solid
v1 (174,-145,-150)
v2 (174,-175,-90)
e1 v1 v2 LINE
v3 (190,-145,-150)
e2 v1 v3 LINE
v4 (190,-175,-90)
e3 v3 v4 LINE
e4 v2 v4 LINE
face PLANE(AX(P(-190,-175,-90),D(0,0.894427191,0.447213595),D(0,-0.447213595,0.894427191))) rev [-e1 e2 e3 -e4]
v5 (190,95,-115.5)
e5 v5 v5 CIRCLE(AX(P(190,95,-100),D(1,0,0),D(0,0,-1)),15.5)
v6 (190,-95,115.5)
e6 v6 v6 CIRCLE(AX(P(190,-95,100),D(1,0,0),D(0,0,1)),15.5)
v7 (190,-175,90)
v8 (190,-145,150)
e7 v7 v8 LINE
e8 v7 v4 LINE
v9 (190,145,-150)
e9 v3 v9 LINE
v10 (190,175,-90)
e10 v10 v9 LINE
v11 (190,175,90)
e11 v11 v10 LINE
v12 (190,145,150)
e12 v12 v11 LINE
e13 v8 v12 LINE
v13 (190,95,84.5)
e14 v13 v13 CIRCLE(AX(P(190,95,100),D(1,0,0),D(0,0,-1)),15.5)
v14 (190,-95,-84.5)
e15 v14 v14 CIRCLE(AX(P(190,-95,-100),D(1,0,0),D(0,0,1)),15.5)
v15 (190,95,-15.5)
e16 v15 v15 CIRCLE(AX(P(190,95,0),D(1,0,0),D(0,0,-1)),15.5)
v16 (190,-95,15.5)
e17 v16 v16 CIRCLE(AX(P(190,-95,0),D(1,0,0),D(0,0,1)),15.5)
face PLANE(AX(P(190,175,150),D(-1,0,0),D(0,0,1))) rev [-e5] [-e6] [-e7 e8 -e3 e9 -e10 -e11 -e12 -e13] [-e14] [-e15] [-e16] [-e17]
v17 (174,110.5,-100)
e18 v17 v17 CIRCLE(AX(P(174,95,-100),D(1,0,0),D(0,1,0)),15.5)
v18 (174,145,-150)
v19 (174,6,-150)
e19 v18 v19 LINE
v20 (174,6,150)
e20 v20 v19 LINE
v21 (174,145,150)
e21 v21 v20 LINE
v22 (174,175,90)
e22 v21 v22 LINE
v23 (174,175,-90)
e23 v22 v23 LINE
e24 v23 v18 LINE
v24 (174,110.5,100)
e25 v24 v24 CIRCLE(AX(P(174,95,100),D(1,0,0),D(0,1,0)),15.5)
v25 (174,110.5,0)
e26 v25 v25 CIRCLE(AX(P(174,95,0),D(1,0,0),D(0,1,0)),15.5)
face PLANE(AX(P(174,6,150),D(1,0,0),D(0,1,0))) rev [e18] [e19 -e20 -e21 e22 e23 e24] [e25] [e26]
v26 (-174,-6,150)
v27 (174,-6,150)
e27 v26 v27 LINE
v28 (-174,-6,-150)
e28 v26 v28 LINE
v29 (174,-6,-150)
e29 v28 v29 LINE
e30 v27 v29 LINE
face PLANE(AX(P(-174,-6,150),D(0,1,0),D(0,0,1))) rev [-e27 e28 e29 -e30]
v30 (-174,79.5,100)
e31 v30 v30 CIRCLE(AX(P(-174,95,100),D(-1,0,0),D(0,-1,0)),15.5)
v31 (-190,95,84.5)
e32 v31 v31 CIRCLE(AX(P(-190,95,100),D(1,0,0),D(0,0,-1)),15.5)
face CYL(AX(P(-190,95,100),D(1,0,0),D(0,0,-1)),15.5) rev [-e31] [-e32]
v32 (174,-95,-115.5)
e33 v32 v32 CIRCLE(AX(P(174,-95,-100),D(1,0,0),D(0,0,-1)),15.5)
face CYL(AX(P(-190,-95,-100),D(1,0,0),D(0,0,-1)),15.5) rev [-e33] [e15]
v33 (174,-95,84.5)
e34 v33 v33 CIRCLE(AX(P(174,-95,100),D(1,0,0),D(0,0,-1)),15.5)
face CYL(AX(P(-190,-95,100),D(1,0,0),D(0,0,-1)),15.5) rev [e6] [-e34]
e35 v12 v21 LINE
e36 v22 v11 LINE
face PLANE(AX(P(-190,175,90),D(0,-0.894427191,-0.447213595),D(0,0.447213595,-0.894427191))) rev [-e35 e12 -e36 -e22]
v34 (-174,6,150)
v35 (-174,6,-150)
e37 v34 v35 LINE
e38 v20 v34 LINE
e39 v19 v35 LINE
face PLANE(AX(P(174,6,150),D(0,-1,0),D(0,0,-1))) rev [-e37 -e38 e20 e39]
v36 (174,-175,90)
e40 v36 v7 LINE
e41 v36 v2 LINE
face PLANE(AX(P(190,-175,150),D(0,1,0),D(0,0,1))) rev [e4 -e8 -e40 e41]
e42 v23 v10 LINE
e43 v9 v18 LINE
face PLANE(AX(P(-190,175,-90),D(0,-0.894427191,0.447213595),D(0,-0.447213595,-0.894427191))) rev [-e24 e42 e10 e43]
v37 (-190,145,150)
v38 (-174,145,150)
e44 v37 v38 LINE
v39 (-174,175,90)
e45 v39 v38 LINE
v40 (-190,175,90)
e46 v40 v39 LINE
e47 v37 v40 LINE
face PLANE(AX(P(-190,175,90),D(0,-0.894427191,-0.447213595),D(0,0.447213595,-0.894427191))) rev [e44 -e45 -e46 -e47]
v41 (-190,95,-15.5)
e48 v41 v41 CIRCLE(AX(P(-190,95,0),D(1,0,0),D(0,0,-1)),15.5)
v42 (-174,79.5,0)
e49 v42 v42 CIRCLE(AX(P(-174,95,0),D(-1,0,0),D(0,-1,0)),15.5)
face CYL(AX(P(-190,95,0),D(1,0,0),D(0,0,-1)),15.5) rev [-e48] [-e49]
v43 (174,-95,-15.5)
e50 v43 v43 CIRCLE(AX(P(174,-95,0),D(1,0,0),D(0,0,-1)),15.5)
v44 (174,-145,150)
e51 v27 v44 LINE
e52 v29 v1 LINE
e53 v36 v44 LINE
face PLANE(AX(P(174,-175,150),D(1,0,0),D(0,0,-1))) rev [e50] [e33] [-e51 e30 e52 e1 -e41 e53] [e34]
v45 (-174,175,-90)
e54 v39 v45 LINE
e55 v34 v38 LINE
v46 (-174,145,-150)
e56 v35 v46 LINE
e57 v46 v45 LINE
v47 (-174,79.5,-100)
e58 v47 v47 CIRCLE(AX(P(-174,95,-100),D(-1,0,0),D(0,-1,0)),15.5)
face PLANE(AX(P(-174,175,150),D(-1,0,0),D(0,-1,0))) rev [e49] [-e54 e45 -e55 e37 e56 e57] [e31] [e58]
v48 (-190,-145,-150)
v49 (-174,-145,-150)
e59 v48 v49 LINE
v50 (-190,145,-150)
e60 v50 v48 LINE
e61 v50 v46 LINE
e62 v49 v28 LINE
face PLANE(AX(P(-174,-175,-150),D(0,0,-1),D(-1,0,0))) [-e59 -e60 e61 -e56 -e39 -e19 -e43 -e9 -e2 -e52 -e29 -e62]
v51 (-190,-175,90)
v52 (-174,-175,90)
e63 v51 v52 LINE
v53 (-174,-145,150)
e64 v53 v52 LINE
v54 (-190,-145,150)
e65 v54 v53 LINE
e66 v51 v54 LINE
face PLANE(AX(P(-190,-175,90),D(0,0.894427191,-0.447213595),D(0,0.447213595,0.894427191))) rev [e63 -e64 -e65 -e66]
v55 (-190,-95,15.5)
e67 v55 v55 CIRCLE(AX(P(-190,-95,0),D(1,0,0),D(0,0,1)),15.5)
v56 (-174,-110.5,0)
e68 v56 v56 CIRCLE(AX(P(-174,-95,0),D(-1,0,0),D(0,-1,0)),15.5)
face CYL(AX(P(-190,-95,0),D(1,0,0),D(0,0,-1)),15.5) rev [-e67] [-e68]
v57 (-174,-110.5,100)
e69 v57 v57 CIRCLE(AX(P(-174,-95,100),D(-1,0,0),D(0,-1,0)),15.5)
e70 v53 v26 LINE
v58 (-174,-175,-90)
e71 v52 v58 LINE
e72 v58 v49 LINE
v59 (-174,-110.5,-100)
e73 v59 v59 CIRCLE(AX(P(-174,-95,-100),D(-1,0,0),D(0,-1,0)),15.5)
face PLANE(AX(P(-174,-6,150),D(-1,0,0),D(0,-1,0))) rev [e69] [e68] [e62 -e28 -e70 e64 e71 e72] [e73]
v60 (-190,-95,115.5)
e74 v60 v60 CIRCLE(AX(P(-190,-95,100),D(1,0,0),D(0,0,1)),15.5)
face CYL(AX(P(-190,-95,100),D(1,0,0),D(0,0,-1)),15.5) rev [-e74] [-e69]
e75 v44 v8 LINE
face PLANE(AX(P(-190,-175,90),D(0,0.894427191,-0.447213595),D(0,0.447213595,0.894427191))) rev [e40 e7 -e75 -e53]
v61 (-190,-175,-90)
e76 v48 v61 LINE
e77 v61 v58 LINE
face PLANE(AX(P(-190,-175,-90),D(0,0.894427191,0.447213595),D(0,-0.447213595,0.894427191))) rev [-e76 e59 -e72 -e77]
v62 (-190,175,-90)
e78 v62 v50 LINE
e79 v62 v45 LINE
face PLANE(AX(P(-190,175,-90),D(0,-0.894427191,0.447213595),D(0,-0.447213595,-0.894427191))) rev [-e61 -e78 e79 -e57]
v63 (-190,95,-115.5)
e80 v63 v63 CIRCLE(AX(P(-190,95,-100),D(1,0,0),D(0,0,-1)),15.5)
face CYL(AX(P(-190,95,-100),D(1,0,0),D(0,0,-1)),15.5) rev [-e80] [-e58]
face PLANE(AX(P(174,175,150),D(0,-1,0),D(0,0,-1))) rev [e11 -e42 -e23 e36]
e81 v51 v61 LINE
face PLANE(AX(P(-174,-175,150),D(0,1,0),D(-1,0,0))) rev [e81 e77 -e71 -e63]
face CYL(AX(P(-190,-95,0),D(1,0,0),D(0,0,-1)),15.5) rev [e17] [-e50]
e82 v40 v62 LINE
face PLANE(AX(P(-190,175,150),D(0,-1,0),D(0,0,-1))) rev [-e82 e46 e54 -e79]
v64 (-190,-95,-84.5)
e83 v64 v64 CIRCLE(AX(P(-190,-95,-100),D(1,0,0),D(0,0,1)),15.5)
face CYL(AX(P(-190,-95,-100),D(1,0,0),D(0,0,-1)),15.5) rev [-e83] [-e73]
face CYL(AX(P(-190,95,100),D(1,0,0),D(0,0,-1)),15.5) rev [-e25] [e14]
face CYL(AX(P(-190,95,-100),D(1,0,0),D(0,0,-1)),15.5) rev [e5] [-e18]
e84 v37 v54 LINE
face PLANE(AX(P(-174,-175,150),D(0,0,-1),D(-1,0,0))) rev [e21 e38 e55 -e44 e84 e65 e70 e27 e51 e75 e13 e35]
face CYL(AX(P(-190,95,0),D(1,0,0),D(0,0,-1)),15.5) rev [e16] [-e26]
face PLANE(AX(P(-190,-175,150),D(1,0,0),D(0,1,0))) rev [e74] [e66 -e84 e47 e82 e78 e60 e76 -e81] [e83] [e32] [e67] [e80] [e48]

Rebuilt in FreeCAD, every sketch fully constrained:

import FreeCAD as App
import Part
import Sketcher
Q = App.Units.Quantity

doc = App.newDocument("Part")
params = doc.addObject("Spreadsheet::Sheet", "Params")
for row, (alias, value) in enumerate([
    ("sketch1_width", "348 mm"),
    ("sketch1_width2", "16 mm"),
    ("sketch1_height", "169 mm"),
    ("sketch1_height2", "350 mm"),
    ("pad1_length", "300 mm"),
    ("sketch2_diameter", "31 mm"),
    ("sketch3_width", "30 mm"),
    ("sketch3_height", "60 mm"),
], start=1):
    params.set(f"A{row}", alias)
    params.set(f"B{row}", "=" + value)
    params.setAlias(f"B{row}", alias)

body = doc.addObject("PartDesign::Body", "Body")

# Sketch on XY plane
sketch1 = body.newObject("Sketcher::SketchObject", "Sketch")
sketch1.AttachmentSupport = (doc.getObject("XY_Plane"), [""])
sketch1.MapMode = "FlatFace"
sketch1.addGeometry([
    Part.LineSegment(App.Vector(-174, -6, 0), App.Vector(174, -6, 0)),  # 0
    Part.LineSegment(App.Vector(174, -6, 0), App.Vector(174, -175, 0)),  # 1
    Part.LineSegment(App.Vector(174, -175, 0), App.Vector(190, -175, 0)),  # 2
    Part.LineSegment(App.Vector(190, -175, 0), App.Vector(190, 175, 0)),  # 3
    Part.LineSegment(App.Vector(190, 175, 0), App.Vector(174, 175, 0)),  # 4
    Part.LineSegment(App.Vector(174, 175, 0), App.Vector(174, 6, 0)),  # 5
    Part.LineSegment(App.Vector(174, 6, 0), App.Vector(-174, 6, 0)),  # 6
    Part.LineSegment(App.Vector(-174, 6, 0), App.Vector(-174, 175, 0)),  # 7
    Part.LineSegment(App.Vector(-174, 175, 0), App.Vector(-190, 175, 0)),  # 8
    Part.LineSegment(App.Vector(-190, 175, 0), App.Vector(-190, -175, 0)),  # 9
    Part.LineSegment(App.Vector(-190, -175, 0), App.Vector(-174, -175, 0)),  # 10
    Part.LineSegment(App.Vector(-174, -175, 0), App.Vector(-174, -6, 0)),  # 11
], False)
sketch1.addConstraint([
    Sketcher.Constraint("Coincident", 0, 2, 1, 1),
    Sketcher.Constraint("Coincident", 1, 2, 2, 1),
    Sketcher.Constraint("Coincident", 2, 2, 3, 1),
    Sketcher.Constraint("Coincident", 3, 2, 4, 1),
    Sketcher.Constraint("Coincident", 4, 2, 5, 1),
    Sketcher.Constraint("Coincident", 5, 2, 6, 1),
    Sketcher.Constraint("Coincident", 6, 2, 7, 1),
    Sketcher.Constraint("Coincident", 7, 2, 8, 1),
    Sketcher.Constraint("Coincident", 8, 2, 9, 1),
    Sketcher.Constraint("Coincident", 9, 2, 10, 1),
    Sketcher.Constraint("Coincident", 10, 2, 11, 1),
    Sketcher.Constraint("Coincident", 11, 2, 0, 1),
    Sketcher.Constraint("Horizontal", 0),
    Sketcher.Constraint("Vertical", 1),
    Sketcher.Constraint("Horizontal", 2),
    Sketcher.Constraint("Vertical", 3),
    Sketcher.Constraint("Horizontal", 4),
    Sketcher.Constraint("Vertical", 5),
    Sketcher.Constraint("Horizontal", 6),
    Sketcher.Constraint("Vertical", 7),
    Sketcher.Constraint("Horizontal", 8),
    Sketcher.Constraint("Vertical", 9),
    Sketcher.Constraint("Horizontal", 10),
    Sketcher.Constraint("Vertical", 11),
    Sketcher.Constraint("Symmetric", 0, 2, 6, 2, -1, 1),
    Sketcher.Constraint("Symmetric", 2, 2, 8, 2, -1, 1),
    Sketcher.Constraint("Symmetric", 4, 2, 10, 2, -1, 1),
    Sketcher.Constraint("Symmetric", 4, 2, 7, 2, -2),
    Sketcher.Constraint("DistanceX", 0, 1, 0, 2, Q("348 mm")),
    Sketcher.Constraint("DistanceX", 2, 1, 2, 2, Q("16 mm")),
    Sketcher.Constraint("DistanceY", 1, 2, 1, 1, Q("169 mm")),
    Sketcher.Constraint("DistanceY", 3, 1, 3, 2, Q("350 mm")),
])
sketch1.setExpression("Constraints[28]", "Params.sketch1_width")
sketch1.setExpression("Constraints[29]", "Params.sketch1_width2")
sketch1.setExpression("Constraints[30]", "Params.sketch1_height")
sketch1.setExpression("Constraints[31]", "Params.sketch1_height2")
pad1 = body.newObject("PartDesign::Pad", "Pad")
pad1.Profile = sketch1
pad1.setExpression("Length", "Params.pad1_length")
pad1.Midplane = True

# Sketch on YZ plane
sketch2 = body.newObject("Sketcher::SketchObject", "Sketch001")
sketch2.AttachmentSupport = (doc.getObject("YZ_Plane"), [""])
sketch2.MapMode = "FlatFace"
sketch2.AttachmentOffset = App.Placement(App.Vector(0, 0, 190), App.Rotation())
sketch2.addGeometry([
    Part.Circle(App.Vector(95, 100, 0), App.Vector(0, 0, 1), 15.5),  # 0
    Part.Circle(App.Vector(95, 0, 0), App.Vector(0, 0, 1), 15.5),  # 1
    Part.Circle(App.Vector(95, -100, 0), App.Vector(0, 0, 1), 15.5),  # 2
    Part.Circle(App.Vector(-95, -100, 0), App.Vector(0, 0, 1), 15.5),  # 3
    Part.Circle(App.Vector(-95, 0, 0), App.Vector(0, 0, 1), 15.5),  # 4
    Part.Circle(App.Vector(-95, 100, 0), App.Vector(0, 0, 1), 15.5),  # 5
], False)
sketch2.addConstraint([
    Sketcher.Constraint("Equal", 0, 1),
    Sketcher.Constraint("Equal", 1, 2),
    Sketcher.Constraint("Equal", 2, 3),
    Sketcher.Constraint("Equal", 3, 4),
    Sketcher.Constraint("Equal", 4, 5),
    Sketcher.Constraint("Symmetric", 0, 3, 3, 3, -1, 1),
    Sketcher.Constraint("Symmetric", 1, 3, 4, 3, -1, 1),
    Sketcher.Constraint("Symmetric", 2, 3, 5, 3, -1, 1),
    Sketcher.Constraint("Symmetric", 2, 3, 3, 3, -2),
    Sketcher.Constraint("PointOnObject", 1, 3, -1),
    Sketcher.Constraint("Vertical", 0, 3, 1, 3),
    Sketcher.Constraint("Diameter", 0, Q("31 mm")),
    Sketcher.Constraint("DistanceX", -1, 1, 0, 3, Q("95 mm")),
    Sketcher.Constraint("DistanceY", -1, 1, 0, 3, Q("100 mm")),
])
sketch2.setExpression("Constraints[11]", "Params.sketch2_diameter")
pocket1 = body.newObject("PartDesign::Pocket", "Pocket")
pocket1.Profile = sketch2
pocket1.Type = "ThroughAll"

# Sketch on YZ plane
sketch3 = body.newObject("Sketcher::SketchObject", "Sketch002")
sketch3.AttachmentSupport = (doc.getObject("YZ_Plane"), [""])
sketch3.MapMode = "FlatFace"
sketch3.addGeometry([
    Part.LineSegment(App.Vector(175, 90, 0), App.Vector(175, 150, 0)),  # 0
    Part.LineSegment(App.Vector(175, 150, 0), App.Vector(145, 150, 0)),  # 1
    Part.LineSegment(App.Vector(145, 150, 0), App.Vector(175, 90, 0)),  # 2
    Part.LineSegment(App.Vector(145, -150, 0), App.Vector(175, -150, 0)),  # 3
    Part.LineSegment(App.Vector(175, -150, 0), App.Vector(175, -90, 0)),  # 4
    Part.LineSegment(App.Vector(175, -90, 0), App.Vector(145, -150, 0)),  # 5
    Part.LineSegment(App.Vector(-175, -90, 0), App.Vector(-175, -150, 0)),  # 6
    Part.LineSegment(App.Vector(-175, -150, 0), App.Vector(-145, -150, 0)),  # 7
    Part.LineSegment(App.Vector(-145, -150, 0), App.Vector(-175, -90, 0)),  # 8
    Part.LineSegment(App.Vector(-145, 150, 0), App.Vector(-175, 150, 0)),  # 9
    Part.LineSegment(App.Vector(-175, 150, 0), App.Vector(-175, 90, 0)),  # 10
    Part.LineSegment(App.Vector(-175, 90, 0), App.Vector(-145, 150, 0)),  # 11
], False)
sketch3.addConstraint([
    Sketcher.Constraint("Coincident", 0, 2, 1, 1),
    Sketcher.Constraint("Coincident", 1, 2, 2, 1),
    Sketcher.Constraint("Coincident", 2, 2, 0, 1),
    Sketcher.Constraint("Coincident", 3, 2, 4, 1),
    Sketcher.Constraint("Coincident", 4, 2, 5, 1),
    Sketcher.Constraint("Coincident", 5, 2, 3, 1),
    Sketcher.Constraint("Coincident", 6, 2, 7, 1),
    Sketcher.Constraint("Coincident", 7, 2, 8, 1),
    Sketcher.Constraint("Coincident", 8, 2, 6, 1),
    Sketcher.Constraint("Coincident", 9, 2, 10, 1),
    Sketcher.Constraint("Coincident", 10, 2, 11, 1),
    Sketcher.Constraint("Coincident", 11, 2, 9, 1),
    Sketcher.Constraint("Vertical", 0),
    Sketcher.Constraint("Horizontal", 1),
    Sketcher.Constraint("Horizontal", 3),
    Sketcher.Constraint("Vertical", 4),
    Sketcher.Constraint("Vertical", 6),
    Sketcher.Constraint("Horizontal", 7),
    Sketcher.Constraint("Horizontal", 9),
    Sketcher.Constraint("Vertical", 10),
    Sketcher.Constraint("Symmetric", 0, 2, 6, 2, -1, 1),
    Sketcher.Constraint("Symmetric", 3, 2, 9, 2, -1, 1),
    Sketcher.Constraint("Symmetric", 3, 2, 6, 2, -2),
    Sketcher.Constraint("Parallel", 2, 8),
    Sketcher.Constraint("Parallel", 5, 11),
    Sketcher.Constraint("Horizontal", 4, 2, 8, 2),
    Sketcher.Constraint("Horizontal", 2, 2, 10, 2),
    Sketcher.Constraint("Vertical", 1, 2, 5, 2),
    Sketcher.Constraint("Vertical", 7, 2, 11, 2),
    Sketcher.Constraint("DistanceX", 1, 2, 1, 1, Q("30 mm")),
    Sketcher.Constraint("DistanceY", 0, 1, 0, 2, Q("60 mm")),
    Sketcher.Constraint("DistanceX", -1, 1, 0, 2, Q("175 mm")),
    Sketcher.Constraint("DistanceY", -1, 1, 0, 2, Q("150 mm")),
])
sketch3.setExpression("Constraints[29]", "Params.sketch3_width")
sketch3.setExpression("Constraints[30]", "Params.sketch3_height")
pocket2 = body.newObject("PartDesign::Pocket", "Pocket001")
pocket2.Profile = sketch3
pocket2.Type = "ThroughAll"
pocket2.Midplane = True

doc.recompute()
